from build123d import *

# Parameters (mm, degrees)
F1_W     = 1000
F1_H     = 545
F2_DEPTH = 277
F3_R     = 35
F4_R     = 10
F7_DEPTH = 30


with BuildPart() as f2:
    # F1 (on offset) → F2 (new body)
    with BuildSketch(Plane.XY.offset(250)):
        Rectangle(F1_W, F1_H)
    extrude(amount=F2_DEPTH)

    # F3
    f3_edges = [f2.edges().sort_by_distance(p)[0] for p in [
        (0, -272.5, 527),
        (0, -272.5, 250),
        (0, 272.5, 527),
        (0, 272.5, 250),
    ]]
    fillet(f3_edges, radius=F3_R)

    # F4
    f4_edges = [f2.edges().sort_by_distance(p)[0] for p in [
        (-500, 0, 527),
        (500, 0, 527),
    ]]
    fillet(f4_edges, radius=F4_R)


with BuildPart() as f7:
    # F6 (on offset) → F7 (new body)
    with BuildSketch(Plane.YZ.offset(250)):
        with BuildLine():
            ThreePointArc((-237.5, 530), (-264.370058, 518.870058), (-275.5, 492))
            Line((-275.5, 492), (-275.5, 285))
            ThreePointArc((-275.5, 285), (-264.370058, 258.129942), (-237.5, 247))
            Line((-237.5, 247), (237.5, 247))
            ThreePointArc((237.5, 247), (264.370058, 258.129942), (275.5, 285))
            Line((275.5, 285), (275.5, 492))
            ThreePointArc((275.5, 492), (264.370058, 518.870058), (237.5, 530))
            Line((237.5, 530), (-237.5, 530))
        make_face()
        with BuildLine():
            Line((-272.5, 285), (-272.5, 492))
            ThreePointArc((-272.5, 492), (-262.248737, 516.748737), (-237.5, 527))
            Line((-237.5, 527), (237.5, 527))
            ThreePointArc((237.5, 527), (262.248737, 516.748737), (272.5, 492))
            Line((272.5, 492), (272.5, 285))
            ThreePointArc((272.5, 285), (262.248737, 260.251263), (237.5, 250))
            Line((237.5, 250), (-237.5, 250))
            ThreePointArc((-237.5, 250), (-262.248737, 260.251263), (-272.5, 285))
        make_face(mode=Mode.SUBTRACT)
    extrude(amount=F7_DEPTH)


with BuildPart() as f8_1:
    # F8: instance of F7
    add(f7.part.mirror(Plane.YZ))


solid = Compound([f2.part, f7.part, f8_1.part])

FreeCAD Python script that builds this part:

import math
import FreeCAD as App
import Part
import Sketcher

V = App.Vector


def edges_at(feature, points):
    """Names of the edges that pass closest to the given points."""
    edges = feature.Shape.Edges
    near = lambda p: min(range(len(edges)), key=lambda i: edges[i].distToShape(Part.Vertex(*p))[0])
    return sorted({f"Edge{near(p) + 1}" for p in points})


def add_polygon(sketch, points):
    """Adds a closed chain of lines whose ends are joined by coincident constraints."""
    first, n = sketch.GeometryCount, len(points)
    for a, b in zip(points, points[1:] + points[:1]):
        sketch.addGeometry(Part.LineSegment(App.Vector(*a, 0), App.Vector(*b, 0)), False)
    for i in range(n):
        sketch.addConstraint(Sketcher.Constraint("Coincident", first + i, 2, first + (i + 1) % n, 1))

doc = App.newDocument("Part")
body = doc.addObject("PartDesign::Body", "Body")

# Sketch on XY plane
sketch1 = body.newObject("Sketcher::SketchObject", "Sketch")
sketch1.AttachmentSupport = (doc.getObject("XY_Plane"), [""])
sketch1.MapMode = "FlatFace"
sketch1.AttachmentOffset = App.Placement(V(0, 0, 250), App.Rotation())
add_polygon(sketch1, [(-500, 272), (-500, -272), (500, -272), (500, 272)])  # lines 0-3
sketch1.addConstraint([
    Sketcher.Constraint("Vertical", 0),
    Sketcher.Constraint("Horizontal", 1),
    Sketcher.Constraint("Vertical", 2),
    Sketcher.Constraint("Horizontal", 3),
    Sketcher.Constraint("Symmetric", 0, 2, 2, 2, -1, 1),
    Sketcher.Constraint("DistanceX", 1, 1, 1, 2, 1000.0),
    Sketcher.Constraint("DistanceY", 0, 2, 0, 1, 545.0),
])
pad1 = body.newObject("PartDesign::Pad", "Pad")
pad1.Profile = sketch1
pad1.Length = 277
doc.recompute()

fillet = body.newObject("PartDesign::Fillet", "Fillet")
fillet.Base = (pad1, edges_at(pad1, [
    (0, -272.5, 527),
    (0, -272.5, 250),
    (0, 272.5, 527),
    (0, 272.5, 250),
]))
fillet.Radius = 35
doc.recompute()

fillet2 = body.newObject("PartDesign::Fillet", "Fillet001")
fillet2.Base = (fillet, edges_at(fillet, [(-500, 0, 527), (500, 0, 527)]))
fillet2.Radius = 10
body2 = doc.addObject("PartDesign::Body", "Body001")

# Sketch on YZ plane
sketch2 = body2.newObject("Sketcher::SketchObject", "Sketch001")
sketch2.AttachmentSupport = (doc.getObject("YZ_Plane001"), [""])
sketch2.MapMode = "FlatFace"
sketch2.AttachmentOffset = App.Placement(V(0, 0, 250), App.Rotation())
sketch2.addGeometry([
    Part.ArcOfCircle(Part.Circle(V(-238, 492, 0), V(0, 0, 1), 38), math.radians(90), math.radians(180)),  # 0
    Part.LineSegment(V(-276, 492, 0), V(-276, 285, 0)),  # 1
    Part.ArcOfCircle(Part.Circle(V(-238, 285, 0), V(0, 0, 1), 38), math.radians(180), math.radians(270)),  # 2
    Part.LineSegment(V(-238, 247, 0), V(238, 247, 0)),  # 3
    Part.ArcOfCircle(Part.Circle(V(238, 285, 0), V(0, 0, 1), 38), math.radians(-90), math.radians(0)),  # 4
    Part.LineSegment(V(276, 285, 0), V(276, 492, 0)),  # 5
    Part.ArcOfCircle(Part.Circle(V(238, 492, 0), V(0, 0, 1), 38), math.radians(0), math.radians(90)),  # 6
    Part.LineSegment(V(238, 530, 0), V(-238, 530, 0)),  # 7
    Part.ArcOfCircle(Part.Circle(V(-237, 285, 0), V(0, 0, 1), 35), math.radians(-180), math.radians(-90)),  # 8
    Part.LineSegment(V(-272, 285, 0), V(-272, 492, 0)),  # 9
    Part.ArcOfCircle(Part.Circle(V(-237, 492, 0), V(0, 0, 1), 35), math.radians(90), math.radians(180)),  # 10
    Part.LineSegment(V(-238, 527, 0), V(238, 527, 0)),  # 11
    Part.ArcOfCircle(Part.Circle(V(237, 492, 0), V(0, 0, 1), 35), math.radians(0), math.radians(90)),  # 12
    Part.LineSegment(V(272, 492, 0), V(272, 285, 0)),  # 13
    Part.ArcOfCircle(Part.Circle(V(237, 285, 0), V(0, 0, 1), 35), math.radians(-90), math.radians(0)),  # 14
    Part.LineSegment(V(238, 250, 0), V(-238, 250, 0)),  # 15
], False)
sketch2.addConstraint([
    Sketcher.Constraint("Tangent", 0, 2, 1, 1),
    Sketcher.Constraint("Tangent", 1, 2, 2, 1),
    Sketcher.Constraint("Tangent", 2, 2, 3, 1),
    Sketcher.Constraint("Tangent", 3, 2, 4, 1),
    Sketcher.Constraint("Tangent", 4, 2, 5, 1),
    Sketcher.Constraint("Tangent", 5, 2, 6, 1),
    Sketcher.Constraint("Tangent", 6, 2, 7, 1),
    Sketcher.Constraint("Tangent", 7, 2, 0, 1),
    Sketcher.Constraint("Tangent", 8, 1, 9, 1),
    Sketcher.Constraint("Tangent", 9, 2, 10, 2),
    Sketcher.Constraint("Tangent", 10, 1, 11, 1),
    Sketcher.Constraint("Tangent", 11, 2, 12, 2),
    Sketcher.Constraint("Tangent", 12, 1, 13, 1),
    Sketcher.Constraint("Tangent", 13, 2, 14, 2),
    Sketcher.Constraint("Tangent", 14, 1, 15, 1),
    Sketcher.Constraint("Tangent", 15, 2, 8, 2),
    Sketcher.Constraint("Vertical", 1),
    Sketcher.Constraint("Horizontal", 3),
    Sketcher.Constraint("Vertical", 5),
    Sketcher.Constraint("Horizontal", 7),
    Sketcher.Constraint("Vertical", 9),
    Sketcher.Constraint("Horizontal", 11),
    Sketcher.Constraint("Vertical", 13),
    Sketcher.Constraint("Horizontal", 15),
    Sketcher.Constraint("Coincident", 8, 3, 2, 3),
    Sketcher.Constraint("Coincident", 10, 3, 0, 3),
    Sketcher.Constraint("Coincident", 12, 3, 6, 3),
    Sketcher.Constraint("Equal", 0, 2),
    Sketcher.Constraint("Equal", 2, 4),
    Sketcher.Constraint("Equal", 4, 6),
    Sketcher.Constraint("Equal", 12, 14),
    Sketcher.Constraint("Radius", 0, 37.999999),
    Sketcher.Constraint("Radius", 8, 35.000001),
    Sketcher.Constraint("DistanceX", 3, 1, 3, 2, 475.0),
    Sketcher.Constraint("DistanceY", 1, 2, 1, 1, 207.0),
    Sketcher.Constraint("DistanceY", -1, 1, 0, 3, 492.000001),
    Sketcher.Constraint("DistanceX", 0, 3, -1, 1, 237.500001),
])
pad2 = body2.newObject("PartDesign::Pad", "Pad001")
pad2.Profile = sketch2
pad2.Length = 30
body3 = doc.addObject("PartDesign::Body", "Body002")
doc.recompute()

mirroring = doc.addObject("Part::Mirroring", "Mirroring")
mirroring.Source = body2
mirroring.Base = V(0, 0, 0)
mirroring.Normal = V(1, 0, 0)
body3.BaseFeature = mirroring
doc.recompute()
mirroring.Visibility = False

doc.recompute()
